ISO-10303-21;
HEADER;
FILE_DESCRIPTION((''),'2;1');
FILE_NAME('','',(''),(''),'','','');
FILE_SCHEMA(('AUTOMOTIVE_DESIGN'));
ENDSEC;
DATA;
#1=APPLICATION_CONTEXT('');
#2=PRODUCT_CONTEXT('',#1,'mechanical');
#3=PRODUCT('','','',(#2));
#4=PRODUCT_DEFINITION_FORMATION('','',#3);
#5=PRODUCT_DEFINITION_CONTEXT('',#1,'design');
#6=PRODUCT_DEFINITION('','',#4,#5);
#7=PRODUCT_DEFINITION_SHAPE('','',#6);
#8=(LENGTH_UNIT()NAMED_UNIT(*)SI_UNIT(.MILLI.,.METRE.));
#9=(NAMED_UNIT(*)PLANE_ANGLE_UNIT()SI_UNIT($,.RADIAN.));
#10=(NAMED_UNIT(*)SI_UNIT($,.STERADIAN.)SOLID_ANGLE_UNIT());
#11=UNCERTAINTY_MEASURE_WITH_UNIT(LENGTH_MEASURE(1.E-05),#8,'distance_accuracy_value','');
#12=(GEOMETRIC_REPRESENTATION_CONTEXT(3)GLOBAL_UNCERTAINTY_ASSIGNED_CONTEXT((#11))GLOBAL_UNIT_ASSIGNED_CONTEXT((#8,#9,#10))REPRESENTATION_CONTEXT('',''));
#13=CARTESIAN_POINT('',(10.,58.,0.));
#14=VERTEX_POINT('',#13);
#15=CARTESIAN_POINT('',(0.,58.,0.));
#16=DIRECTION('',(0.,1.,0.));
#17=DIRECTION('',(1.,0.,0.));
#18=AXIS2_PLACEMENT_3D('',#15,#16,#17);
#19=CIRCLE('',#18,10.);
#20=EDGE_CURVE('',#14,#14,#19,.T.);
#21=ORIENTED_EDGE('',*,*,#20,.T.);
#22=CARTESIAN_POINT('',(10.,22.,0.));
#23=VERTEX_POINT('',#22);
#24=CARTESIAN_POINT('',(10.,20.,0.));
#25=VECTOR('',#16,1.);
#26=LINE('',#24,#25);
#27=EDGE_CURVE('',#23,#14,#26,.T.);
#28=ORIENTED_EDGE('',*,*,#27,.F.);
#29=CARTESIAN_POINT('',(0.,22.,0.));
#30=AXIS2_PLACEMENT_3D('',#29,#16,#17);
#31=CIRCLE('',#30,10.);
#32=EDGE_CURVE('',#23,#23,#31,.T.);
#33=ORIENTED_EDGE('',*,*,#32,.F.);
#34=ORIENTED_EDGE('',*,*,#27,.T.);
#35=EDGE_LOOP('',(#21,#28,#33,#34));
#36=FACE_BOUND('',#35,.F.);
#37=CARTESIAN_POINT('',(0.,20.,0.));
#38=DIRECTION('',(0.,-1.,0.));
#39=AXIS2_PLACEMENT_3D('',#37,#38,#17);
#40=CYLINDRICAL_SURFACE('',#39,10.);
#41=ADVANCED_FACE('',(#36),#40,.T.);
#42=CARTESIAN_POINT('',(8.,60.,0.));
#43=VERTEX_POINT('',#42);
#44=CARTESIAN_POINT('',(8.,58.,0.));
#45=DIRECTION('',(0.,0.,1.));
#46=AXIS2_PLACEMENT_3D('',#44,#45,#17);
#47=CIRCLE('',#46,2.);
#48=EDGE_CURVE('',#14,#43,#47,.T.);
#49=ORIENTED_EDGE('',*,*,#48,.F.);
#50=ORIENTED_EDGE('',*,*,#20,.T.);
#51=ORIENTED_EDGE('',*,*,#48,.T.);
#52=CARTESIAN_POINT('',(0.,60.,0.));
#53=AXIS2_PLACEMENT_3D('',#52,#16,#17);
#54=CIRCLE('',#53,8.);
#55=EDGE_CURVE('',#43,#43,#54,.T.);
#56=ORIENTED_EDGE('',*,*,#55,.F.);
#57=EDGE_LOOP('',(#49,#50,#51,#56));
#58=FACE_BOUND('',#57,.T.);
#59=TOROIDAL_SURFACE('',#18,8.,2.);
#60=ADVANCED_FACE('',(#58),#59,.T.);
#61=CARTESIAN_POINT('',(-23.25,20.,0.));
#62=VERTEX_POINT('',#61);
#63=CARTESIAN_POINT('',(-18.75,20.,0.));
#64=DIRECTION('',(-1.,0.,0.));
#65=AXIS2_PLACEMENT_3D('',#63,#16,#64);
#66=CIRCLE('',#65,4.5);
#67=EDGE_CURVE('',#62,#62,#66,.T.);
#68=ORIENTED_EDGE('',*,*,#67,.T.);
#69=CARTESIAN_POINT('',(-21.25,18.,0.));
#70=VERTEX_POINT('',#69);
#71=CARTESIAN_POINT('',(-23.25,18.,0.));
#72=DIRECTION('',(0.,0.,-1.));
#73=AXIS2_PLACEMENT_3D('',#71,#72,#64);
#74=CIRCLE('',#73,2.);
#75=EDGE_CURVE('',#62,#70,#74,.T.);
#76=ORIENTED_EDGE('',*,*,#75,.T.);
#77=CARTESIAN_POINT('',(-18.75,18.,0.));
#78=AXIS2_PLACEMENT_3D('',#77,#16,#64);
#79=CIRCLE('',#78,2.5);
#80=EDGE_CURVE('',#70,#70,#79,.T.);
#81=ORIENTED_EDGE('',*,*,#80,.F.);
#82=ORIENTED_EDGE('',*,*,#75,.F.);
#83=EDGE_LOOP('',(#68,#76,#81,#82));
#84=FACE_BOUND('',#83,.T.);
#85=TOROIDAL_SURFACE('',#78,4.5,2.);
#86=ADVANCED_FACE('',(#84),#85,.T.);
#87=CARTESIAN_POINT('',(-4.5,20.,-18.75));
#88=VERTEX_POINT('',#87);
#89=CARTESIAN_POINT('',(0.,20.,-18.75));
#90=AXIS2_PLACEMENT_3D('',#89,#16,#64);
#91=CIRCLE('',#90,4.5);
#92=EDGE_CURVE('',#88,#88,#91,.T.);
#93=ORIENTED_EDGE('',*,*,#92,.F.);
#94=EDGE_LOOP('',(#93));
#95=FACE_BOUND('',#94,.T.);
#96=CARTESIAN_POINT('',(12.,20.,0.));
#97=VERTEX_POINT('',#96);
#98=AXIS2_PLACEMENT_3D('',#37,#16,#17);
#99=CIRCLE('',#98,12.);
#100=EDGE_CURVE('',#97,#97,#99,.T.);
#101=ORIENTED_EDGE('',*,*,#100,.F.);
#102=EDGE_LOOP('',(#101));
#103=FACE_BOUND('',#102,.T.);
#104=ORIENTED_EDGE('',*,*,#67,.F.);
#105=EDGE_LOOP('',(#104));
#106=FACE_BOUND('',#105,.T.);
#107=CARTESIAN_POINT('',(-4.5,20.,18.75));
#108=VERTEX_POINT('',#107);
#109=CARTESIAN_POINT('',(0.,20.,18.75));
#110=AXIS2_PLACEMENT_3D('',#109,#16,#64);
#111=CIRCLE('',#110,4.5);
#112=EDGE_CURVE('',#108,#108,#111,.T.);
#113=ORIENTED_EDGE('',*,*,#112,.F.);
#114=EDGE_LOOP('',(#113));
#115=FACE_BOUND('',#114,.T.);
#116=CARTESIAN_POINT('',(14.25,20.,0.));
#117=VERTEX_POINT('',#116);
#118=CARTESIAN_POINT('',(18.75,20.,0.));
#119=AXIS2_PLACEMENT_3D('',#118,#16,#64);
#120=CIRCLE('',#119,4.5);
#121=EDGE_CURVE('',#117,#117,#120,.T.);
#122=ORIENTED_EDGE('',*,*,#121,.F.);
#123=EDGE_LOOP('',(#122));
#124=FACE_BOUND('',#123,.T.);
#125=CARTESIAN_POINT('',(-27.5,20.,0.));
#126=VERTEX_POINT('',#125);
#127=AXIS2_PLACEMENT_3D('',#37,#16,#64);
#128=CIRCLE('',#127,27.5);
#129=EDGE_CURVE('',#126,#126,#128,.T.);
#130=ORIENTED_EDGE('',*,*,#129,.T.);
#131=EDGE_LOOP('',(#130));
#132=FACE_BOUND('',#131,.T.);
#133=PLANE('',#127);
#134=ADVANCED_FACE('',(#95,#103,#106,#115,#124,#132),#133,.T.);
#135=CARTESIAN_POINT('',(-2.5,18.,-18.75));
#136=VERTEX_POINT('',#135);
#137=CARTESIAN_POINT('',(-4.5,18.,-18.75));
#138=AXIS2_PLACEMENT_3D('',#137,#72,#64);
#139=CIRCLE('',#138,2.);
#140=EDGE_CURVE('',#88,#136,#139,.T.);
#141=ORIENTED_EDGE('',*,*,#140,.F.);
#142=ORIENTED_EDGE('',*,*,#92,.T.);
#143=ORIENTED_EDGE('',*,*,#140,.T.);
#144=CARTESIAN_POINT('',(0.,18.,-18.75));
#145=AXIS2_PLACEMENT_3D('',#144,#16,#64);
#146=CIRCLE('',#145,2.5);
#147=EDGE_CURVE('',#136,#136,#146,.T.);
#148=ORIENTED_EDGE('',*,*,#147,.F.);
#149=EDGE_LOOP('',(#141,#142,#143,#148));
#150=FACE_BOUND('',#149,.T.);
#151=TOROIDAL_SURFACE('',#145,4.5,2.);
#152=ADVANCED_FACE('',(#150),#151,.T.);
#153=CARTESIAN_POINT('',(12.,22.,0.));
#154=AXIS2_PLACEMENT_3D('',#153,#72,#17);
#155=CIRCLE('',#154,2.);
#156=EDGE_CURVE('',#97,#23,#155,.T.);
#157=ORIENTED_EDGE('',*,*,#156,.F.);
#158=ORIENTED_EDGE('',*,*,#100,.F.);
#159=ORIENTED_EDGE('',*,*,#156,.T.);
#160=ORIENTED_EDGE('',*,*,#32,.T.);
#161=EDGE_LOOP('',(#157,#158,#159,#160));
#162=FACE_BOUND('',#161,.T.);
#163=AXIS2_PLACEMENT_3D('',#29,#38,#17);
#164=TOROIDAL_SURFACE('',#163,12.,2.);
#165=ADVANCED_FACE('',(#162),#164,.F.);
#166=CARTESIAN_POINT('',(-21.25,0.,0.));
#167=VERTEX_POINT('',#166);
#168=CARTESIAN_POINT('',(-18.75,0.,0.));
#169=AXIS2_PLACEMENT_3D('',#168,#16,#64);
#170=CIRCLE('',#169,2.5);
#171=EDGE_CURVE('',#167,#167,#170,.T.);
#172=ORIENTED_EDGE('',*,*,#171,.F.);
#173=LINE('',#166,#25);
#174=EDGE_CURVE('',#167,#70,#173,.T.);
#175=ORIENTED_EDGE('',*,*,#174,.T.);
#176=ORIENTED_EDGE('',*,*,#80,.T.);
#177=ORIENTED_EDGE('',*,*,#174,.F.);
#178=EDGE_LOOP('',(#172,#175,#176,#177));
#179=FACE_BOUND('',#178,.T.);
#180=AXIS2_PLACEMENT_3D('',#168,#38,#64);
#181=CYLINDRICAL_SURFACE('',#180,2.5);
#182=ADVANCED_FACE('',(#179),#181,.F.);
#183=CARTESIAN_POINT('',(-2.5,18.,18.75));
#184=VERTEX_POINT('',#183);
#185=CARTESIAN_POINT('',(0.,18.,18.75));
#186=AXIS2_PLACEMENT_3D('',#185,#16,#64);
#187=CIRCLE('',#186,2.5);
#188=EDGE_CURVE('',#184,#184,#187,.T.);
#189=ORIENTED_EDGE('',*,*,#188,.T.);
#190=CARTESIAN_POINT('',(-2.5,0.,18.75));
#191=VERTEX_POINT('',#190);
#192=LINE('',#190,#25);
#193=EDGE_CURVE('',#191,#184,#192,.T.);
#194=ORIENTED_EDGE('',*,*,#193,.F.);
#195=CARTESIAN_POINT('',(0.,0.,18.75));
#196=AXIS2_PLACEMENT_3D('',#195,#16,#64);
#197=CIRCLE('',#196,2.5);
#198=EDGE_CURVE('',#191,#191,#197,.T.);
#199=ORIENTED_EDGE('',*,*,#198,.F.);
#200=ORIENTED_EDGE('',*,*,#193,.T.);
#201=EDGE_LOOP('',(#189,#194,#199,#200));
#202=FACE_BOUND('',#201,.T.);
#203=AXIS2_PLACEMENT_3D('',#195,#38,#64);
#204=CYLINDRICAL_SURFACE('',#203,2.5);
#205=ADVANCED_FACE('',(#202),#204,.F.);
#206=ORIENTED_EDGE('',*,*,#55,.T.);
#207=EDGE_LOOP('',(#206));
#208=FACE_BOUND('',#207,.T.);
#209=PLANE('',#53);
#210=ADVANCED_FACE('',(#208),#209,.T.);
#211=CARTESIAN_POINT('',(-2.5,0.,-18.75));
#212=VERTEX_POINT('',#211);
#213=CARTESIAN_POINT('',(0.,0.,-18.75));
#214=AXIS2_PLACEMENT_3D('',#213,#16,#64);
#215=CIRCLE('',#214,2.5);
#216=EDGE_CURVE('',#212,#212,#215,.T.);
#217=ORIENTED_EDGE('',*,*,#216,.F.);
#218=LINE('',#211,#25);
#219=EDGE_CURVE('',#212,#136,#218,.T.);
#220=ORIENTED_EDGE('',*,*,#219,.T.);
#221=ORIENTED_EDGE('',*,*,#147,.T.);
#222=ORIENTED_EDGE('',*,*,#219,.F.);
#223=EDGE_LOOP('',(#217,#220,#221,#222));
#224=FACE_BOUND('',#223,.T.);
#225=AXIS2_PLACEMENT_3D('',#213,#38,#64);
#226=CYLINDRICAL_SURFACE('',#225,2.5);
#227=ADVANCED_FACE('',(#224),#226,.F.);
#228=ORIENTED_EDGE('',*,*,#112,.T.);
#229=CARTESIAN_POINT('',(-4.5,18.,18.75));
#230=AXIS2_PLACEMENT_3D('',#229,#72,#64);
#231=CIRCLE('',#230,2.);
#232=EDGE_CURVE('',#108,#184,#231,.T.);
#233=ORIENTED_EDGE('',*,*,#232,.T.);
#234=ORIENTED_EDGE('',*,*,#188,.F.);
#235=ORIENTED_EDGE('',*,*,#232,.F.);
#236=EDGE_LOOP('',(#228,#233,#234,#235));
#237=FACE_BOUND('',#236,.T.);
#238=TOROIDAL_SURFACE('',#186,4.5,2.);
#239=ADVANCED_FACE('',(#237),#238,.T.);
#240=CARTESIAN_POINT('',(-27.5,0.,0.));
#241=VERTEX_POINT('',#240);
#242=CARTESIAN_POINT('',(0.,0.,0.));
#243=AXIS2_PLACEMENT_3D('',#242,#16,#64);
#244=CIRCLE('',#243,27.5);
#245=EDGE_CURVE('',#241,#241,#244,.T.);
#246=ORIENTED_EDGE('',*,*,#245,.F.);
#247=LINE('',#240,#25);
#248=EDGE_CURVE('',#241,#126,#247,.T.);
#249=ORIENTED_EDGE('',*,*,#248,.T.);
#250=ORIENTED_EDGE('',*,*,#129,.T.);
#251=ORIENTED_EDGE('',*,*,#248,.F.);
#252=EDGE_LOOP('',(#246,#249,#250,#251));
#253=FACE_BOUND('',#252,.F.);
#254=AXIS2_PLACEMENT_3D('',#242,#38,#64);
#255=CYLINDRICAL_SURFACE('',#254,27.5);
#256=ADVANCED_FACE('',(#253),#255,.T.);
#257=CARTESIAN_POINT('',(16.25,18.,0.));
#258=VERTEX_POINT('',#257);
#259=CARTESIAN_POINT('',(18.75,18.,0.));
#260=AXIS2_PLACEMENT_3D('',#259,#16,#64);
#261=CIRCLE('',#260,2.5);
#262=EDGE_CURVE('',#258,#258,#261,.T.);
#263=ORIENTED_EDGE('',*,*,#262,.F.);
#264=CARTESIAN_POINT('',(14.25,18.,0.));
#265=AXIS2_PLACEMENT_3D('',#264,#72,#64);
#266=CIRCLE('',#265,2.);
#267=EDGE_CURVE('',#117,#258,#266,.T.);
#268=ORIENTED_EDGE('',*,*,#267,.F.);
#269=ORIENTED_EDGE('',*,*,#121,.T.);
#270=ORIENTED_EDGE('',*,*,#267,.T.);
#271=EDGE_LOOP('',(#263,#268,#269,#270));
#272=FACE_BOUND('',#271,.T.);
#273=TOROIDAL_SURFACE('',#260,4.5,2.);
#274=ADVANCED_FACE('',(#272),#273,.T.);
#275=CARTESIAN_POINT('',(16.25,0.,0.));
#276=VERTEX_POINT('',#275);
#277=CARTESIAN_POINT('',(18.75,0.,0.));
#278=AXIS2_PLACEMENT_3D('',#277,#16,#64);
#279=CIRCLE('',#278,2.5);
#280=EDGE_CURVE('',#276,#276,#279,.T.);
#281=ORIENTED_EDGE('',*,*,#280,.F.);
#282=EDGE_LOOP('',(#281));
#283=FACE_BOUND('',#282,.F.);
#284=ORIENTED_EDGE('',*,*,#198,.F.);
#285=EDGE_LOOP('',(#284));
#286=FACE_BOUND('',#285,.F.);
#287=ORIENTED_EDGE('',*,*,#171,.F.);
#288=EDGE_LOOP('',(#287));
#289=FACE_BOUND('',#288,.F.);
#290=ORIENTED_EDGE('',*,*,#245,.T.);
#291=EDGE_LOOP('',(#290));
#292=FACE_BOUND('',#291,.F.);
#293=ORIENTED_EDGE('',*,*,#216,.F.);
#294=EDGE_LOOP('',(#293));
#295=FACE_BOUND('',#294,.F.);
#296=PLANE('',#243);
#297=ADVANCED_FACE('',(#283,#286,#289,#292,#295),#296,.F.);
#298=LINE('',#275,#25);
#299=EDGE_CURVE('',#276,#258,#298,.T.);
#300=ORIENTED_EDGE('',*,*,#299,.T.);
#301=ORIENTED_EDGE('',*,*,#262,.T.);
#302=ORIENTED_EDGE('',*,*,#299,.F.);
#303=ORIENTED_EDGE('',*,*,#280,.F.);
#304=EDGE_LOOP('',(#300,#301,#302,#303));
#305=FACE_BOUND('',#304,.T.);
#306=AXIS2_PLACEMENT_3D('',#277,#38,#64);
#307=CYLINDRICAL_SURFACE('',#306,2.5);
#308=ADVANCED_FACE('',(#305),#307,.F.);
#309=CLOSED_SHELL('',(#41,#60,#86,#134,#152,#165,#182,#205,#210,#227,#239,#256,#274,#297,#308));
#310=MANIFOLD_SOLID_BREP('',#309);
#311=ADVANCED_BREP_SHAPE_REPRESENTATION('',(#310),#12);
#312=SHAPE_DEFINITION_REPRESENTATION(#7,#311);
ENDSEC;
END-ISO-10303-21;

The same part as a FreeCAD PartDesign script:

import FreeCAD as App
import Part
import Sketcher

V = App.Vector


def edges_at(feature, points):
    """Names of the edges that pass closest to the given points."""
    edges = feature.Shape.Edges
    near = lambda p: min(range(len(edges)), key=lambda i: edges[i].distToShape(Part.Vertex(*p))[0])
    return sorted({f"Edge{near(p) + 1}" for p in points})

doc = App.newDocument("Part")
body = doc.addObject("PartDesign::Body", "Body")

# Sketch on XZ plane
sketch1 = doc.addObject("Sketcher::SketchObject", "Sketch")
body.addObject(sketch1)
sketch1.AttachmentSupport = (doc.XZ_Plane, [""])
sketch1.MapMode = "FlatFace"
sketch1.addGeometry(Part.Circle(V(0, 0, 0), V(0, 0, 1), 27.5), False)
sketch1.addGeometry(Part.Circle(V(0, -18.8, 0), V(0, 0, 1), 2.5), False)
sketch1.addGeometry(Part.Circle(V(18.8, 0, 0), V(0, 0, 1), 2.5), False)
sketch1.addGeometry(Part.Circle(V(-18.8, 0, 0), V(0, 0, 1), 2.5), False)
sketch1.addGeometry(Part.Circle(V(0, 18.8, 0), V(0, 0, 1), 2.5), False)
sketch1.addConstraint(Sketcher.Constraint("Coincident", 0, 3, -1, 1))
sketch1.addConstraint(Sketcher.Constraint("Equal", 1, 2))
sketch1.addConstraint(Sketcher.Constraint("Equal", 2, 3))
sketch1.addConstraint(Sketcher.Constraint("Equal", 3, 4))
sketch1.addConstraint(Sketcher.Constraint("Symmetric", 2, 3, 3, 3, -1, 1))
sketch1.addConstraint(Sketcher.Constraint("Symmetric", 1, 3, 4, 3, -1, 1))
sketch1.addConstraint(Sketcher.Constraint("PointOnObject", 1, 3, -2))
sketch1.addConstraint(Sketcher.Constraint("PointOnObject", 2, 3, -1))
sketch1.addConstraint(Sketcher.Constraint("Diameter", 0, 55.0))
sketch1.addConstraint(Sketcher.Constraint("Diameter", 1, 5.0))
sketch1.addConstraint(Sketcher.Constraint("DistanceX", 3, 3, 2, 3, 37.5))
sketch1.addConstraint(Sketcher.Constraint("DistanceY", 1, 3, 4, 3, 37.5))
pad1 = doc.addObject("PartDesign::Pad", "Pad")
body.addObject(pad1)
pad1.Profile = sketch1
pad1.Length = 20
pad1.Reversed = True

# Sketch on XZ plane
sketch2 = doc.addObject("Sketcher::SketchObject", "Sketch001")
body.addObject(sketch2)
sketch2.AttachmentSupport = (doc.XZ_Plane, [""])
sketch2.MapMode = "FlatFace"
sketch2.AttachmentOffset = App.Placement(V(0, 0, -20), App.Rotation())
sketch2.addGeometry(Part.Circle(V(0, 0, 0), V(0, 0, 1), 10), False)
sketch2.addConstraint(Sketcher.Constraint("Coincident", 0, 3, -1, 1))
sketch2.addConstraint(Sketcher.Constraint("Diameter", 0, 20.0))
pad2 = doc.addObject("PartDesign::Pad", "Pad001")
body.addObject(pad2)
pad2.Profile = sketch2
pad2.Length = 40
pad2.Reversed = True
doc.recompute()

fillet = doc.addObject("PartDesign::Fillet", "Fillet")
body.addObject(fillet)
fillet.Base = (pad2, edges_at(pad2, [
    (-10, 60, 0),
    (21.25, 20, 0),
    (2.5, 20, -18.75),
    (-16.25, 20, 0),
    (2.5, 20, 18.75),
    (-10, 20, 0),
]))
fillet.Radius = 2

doc.recompute()
